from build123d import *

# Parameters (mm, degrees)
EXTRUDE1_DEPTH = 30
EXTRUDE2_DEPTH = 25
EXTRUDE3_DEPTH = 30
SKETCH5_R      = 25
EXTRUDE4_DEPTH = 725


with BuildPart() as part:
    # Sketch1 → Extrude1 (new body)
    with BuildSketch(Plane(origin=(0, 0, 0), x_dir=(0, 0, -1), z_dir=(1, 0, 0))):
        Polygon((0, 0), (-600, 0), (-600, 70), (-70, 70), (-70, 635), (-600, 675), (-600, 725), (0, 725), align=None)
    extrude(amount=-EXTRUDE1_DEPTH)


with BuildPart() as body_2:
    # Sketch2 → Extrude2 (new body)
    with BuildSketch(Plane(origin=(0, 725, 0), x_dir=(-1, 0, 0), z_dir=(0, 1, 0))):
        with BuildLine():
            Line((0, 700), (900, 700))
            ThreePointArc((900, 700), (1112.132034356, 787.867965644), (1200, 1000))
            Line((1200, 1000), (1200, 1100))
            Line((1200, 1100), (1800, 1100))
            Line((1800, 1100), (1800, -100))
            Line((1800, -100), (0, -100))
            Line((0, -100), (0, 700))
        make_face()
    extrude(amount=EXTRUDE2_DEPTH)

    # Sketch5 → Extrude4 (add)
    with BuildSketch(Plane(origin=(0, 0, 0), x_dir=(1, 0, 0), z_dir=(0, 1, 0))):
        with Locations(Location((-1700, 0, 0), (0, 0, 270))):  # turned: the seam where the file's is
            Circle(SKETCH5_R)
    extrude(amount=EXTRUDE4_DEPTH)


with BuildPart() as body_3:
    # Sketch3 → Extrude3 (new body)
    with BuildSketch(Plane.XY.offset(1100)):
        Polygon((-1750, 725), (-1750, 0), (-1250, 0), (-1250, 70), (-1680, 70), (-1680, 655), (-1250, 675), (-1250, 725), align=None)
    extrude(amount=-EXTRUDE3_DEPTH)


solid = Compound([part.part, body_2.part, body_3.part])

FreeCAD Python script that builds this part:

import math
import FreeCAD as App
import Part
import Sketcher
from FreeCAD import Vector


def add_polygon(sketch, points):
    """Adds a closed chain of lines whose ends are joined by coincident constraints."""
    first, n = sketch.GeometryCount, len(points)
    for a, b in zip(points, points[1:] + points[:1]):
        sketch.addGeometry(Part.LineSegment(App.Vector(*a, 0), App.Vector(*b, 0)), False)
    for i in range(n):
        sketch.addConstraint(Sketcher.Constraint("Coincident", first + i, 2, first + (i + 1) % n, 1))

doc = App.newDocument("Part")
body = doc.addObject("PartDesign::Body", "Body")

# Sketch on YZ plane
sketch1 = doc.addObject("Sketcher::SketchObject", "Sketch")
body.addObject(sketch1)
sketch1.AttachmentSupport = (doc.YZ_Plane, [""])
sketch1.MapMode = "FlatFace"
add_polygon(sketch1, [(0, 600), (0, 0), (725, 0), (725, 600), (675, 600), (635, 70), (70, 70), (70, 600)])  # lines 0-7
sketch1.addConstraint(Sketcher.Constraint("Vertical", 0))
sketch1.addConstraint(Sketcher.Constraint("Horizontal", 1))
sketch1.addConstraint(Sketcher.Constraint("Vertical", 2))
sketch1.addConstraint(Sketcher.Constraint("Horizontal", 3))
sketch1.addConstraint(Sketcher.Constraint("Horizontal", 5))
sketch1.addConstraint(Sketcher.Constraint("Vertical", 6))
sketch1.addConstraint(Sketcher.Constraint("Horizontal", 7))
sketch1.addConstraint(Sketcher.Constraint("Coincident", 0, 2, -1, 1))
sketch1.addConstraint(Sketcher.Constraint("Horizontal", 3, 2, 6, 2))
sketch1.addConstraint(Sketcher.Constraint("DistanceX", 1, 1, 1, 2, 725.0))
sketch1.addConstraint(Sketcher.Constraint("DistanceX", 3, 2, 3, 1, 50.0))
sketch1.addConstraint(Sketcher.Constraint("DistanceX", 5, 2, 5, 1, 565.0))
sketch1.addConstraint(Sketcher.Constraint("DistanceX", 7, 2, 7, 1, 70.0))
sketch1.addConstraint(Sketcher.Constraint("DistanceY", 0, 2, 0, 1, 600.0))
sketch1.addConstraint(Sketcher.Constraint("DistanceY", 6, 1, 6, 2, 530.0))
pad1 = doc.addObject("PartDesign::Pad", "Pad")
body.addObject(pad1)
pad1.Profile = sketch1
pad1.Length = 30
pad1.Reversed = True
body2 = doc.addObject("PartDesign::Body", "Body001")

# Sketch on XZ plane
sketch2 = doc.addObject("Sketcher::SketchObject", "Sketch001")
body2.addObject(sketch2)
sketch2.AttachmentSupport = (doc.getObject("XZ_Plane001"), [""])
sketch2.MapMode = "FlatFace"
sketch2.AttachmentOffset = App.Placement(Vector(0, 0, -725), App.Rotation())
sketch2.addGeometry(Part.LineSegment(Vector(-900, 700, 0), Vector(0, 700, 0)), False)
sketch2.addGeometry(Part.LineSegment(Vector(0, 700, 0), Vector(0, -100, 0)), False)
sketch2.addGeometry(Part.LineSegment(Vector(0, -100, 0), Vector(-1800, -100, 0)), False)
sketch2.addGeometry(Part.LineSegment(Vector(-1800, -100, 0), Vector(-1800, 1100, 0)), False)
sketch2.addGeometry(Part.LineSegment(Vector(-1800, 1100, 0), Vector(-1200, 1100, 0)), False)
sketch2.addGeometry(Part.LineSegment(Vector(-1200, 1100, 0), Vector(-1200, 1000, 0)), False)
sketch2.addGeometry(Part.ArcOfCircle(Part.Circle(Vector(-900, 1000, 0), Vector(0, 0, 1), 300), math.radians(180), math.radians(270)), False)
sketch2.addConstraint(Sketcher.Constraint("Coincident", 0, 2, 1, 1))
sketch2.addConstraint(Sketcher.Constraint("Coincident", 1, 2, 2, 1))
sketch2.addConstraint(Sketcher.Constraint("Coincident", 2, 2, 3, 1))
sketch2.addConstraint(Sketcher.Constraint("Coincident", 3, 2, 4, 1))
sketch2.addConstraint(Sketcher.Constraint("Coincident", 4, 2, 5, 1))
sketch2.addConstraint(Sketcher.Constraint("Tangent", 5, 2, 6, 1))
sketch2.addConstraint(Sketcher.Constraint("Tangent", 6, 2, 0, 1))
sketch2.addConstraint(Sketcher.Constraint("Horizontal", 0))
sketch2.addConstraint(Sketcher.Constraint("Vertical", 1))
sketch2.addConstraint(Sketcher.Constraint("Horizontal", 2))
sketch2.addConstraint(Sketcher.Constraint("Vertical", 3))
sketch2.addConstraint(Sketcher.Constraint("Horizontal", 4))
sketch2.addConstraint(Sketcher.Constraint("Vertical", 5))
sketch2.addConstraint(Sketcher.Constraint("PointOnObject", 0, 2, -2))
sketch2.addConstraint(Sketcher.Constraint("Radius", 6, 300.0))
sketch2.addConstraint(Sketcher.Constraint("DistanceX", 0, 1, 0, 2, 900.0))
sketch2.addConstraint(Sketcher.Constraint("DistanceX", 2, 2, 2, 1, 1800.0))
sketch2.addConstraint(Sketcher.Constraint("DistanceY", 1, 2, 1, 1, 800.0))
sketch2.addConstraint(Sketcher.Constraint("DistanceY", 3, 1, 3, 2, 1200.0))
sketch2.addConstraint(Sketcher.Constraint("DistanceY", -1, 1, 6, 3, 1000.0))
pad2 = doc.addObject("PartDesign::Pad", "Pad001")
body2.addObject(pad2)
pad2.Profile = sketch2
pad2.Length = 25
pad2.Reversed = True

# Sketch on XZ plane
sketch3 = doc.addObject("Sketcher::SketchObject", "Sketch002")
body2.addObject(sketch3)
sketch3.AttachmentSupport = (doc.getObject("XZ_Plane001"), [""])
sketch3.MapMode = "FlatFace"
sketch3.addGeometry(Part.Circle(Vector(-1700, 0, 0), Vector(0, 0, 1), 25), False)
sketch3.addConstraint(Sketcher.Constraint("PointOnObject", 0, 3, -1))
sketch3.addConstraint(Sketcher.Constraint("Diameter", 0, 50.0))
sketch3.addConstraint(Sketcher.Constraint("DistanceX", 0, 3, -1, 1, 1700.0))
pad3 = doc.addObject("PartDesign::Pad", "Pad002")
body2.addObject(pad3)
pad3.Profile = sketch3
pad3.Length = 725
pad3.Reversed = True
body3 = doc.addObject("PartDesign::Body", "Body002")

# Sketch on XY plane
sketch4 = doc.addObject("Sketcher::SketchObject", "Sketch003")
body3.addObject(sketch4)
sketch4.AttachmentSupport = (doc.getObject("XY_Plane002"), [""])
sketch4.MapMode = "FlatFace"
sketch4.AttachmentOffset = App.Placement(Vector(0, 0, 1100), App.Rotation())
add_polygon(sketch4, [(-1750, 725), (-1750, 0), (-1250, 0), (-1250, 70), (-1680, 70), (-1680, 655), (-1250, 675), (-1250, 725)])  # lines 0-7
sketch4.addConstraint(Sketcher.Constraint("Vertical", 0))
sketch4.addConstraint(Sketcher.Constraint("Horizontal", 1))
sketch4.addConstraint(Sketcher.Constraint("Vertical", 2))
sketch4.addConstraint(Sketcher.Constraint("Horizontal", 3))
sketch4.addConstraint(Sketcher.Constraint("Vertical", 4))
sketch4.addConstraint(Sketcher.Constraint("Vertical", 6))
sketch4.addConstraint(Sketcher.Constraint("Horizontal", 7))
sketch4.addConstraint(Sketcher.Constraint("PointOnObject", 0, 2, -1))
sketch4.addConstraint(Sketcher.Constraint("Vertical", 2, 2, 5, 2))
sketch4.addConstraint(Sketcher.Constraint("DistanceX", 1, 1, 1, 2, 500.0))
sketch4.addConstraint(Sketcher.Constraint("DistanceX", 3, 2, 3, 1, 430.0))
sketch4.addConstraint(Sketcher.Constraint("DistanceY", 0, 2, 0, 1, 725.0))
sketch4.addConstraint(Sketcher.Constraint("DistanceY", 2, 1, 2, 2, 70.0))
sketch4.addConstraint(Sketcher.Constraint("DistanceY", 4, 1, 4, 2, 585.0))
sketch4.addConstraint(Sketcher.Constraint("DistanceY", 6, 1, 6, 2, 50.0))
sketch4.addConstraint(Sketcher.Constraint("DistanceX", 0, 2, -1, 1, 1750.0))
pad4 = doc.addObject("PartDesign::Pad", "Pad003")
body3.addObject(pad4)
pad4.Profile = sketch4
pad4.Length = 30
pad4.Reversed = True

doc.recompute()
